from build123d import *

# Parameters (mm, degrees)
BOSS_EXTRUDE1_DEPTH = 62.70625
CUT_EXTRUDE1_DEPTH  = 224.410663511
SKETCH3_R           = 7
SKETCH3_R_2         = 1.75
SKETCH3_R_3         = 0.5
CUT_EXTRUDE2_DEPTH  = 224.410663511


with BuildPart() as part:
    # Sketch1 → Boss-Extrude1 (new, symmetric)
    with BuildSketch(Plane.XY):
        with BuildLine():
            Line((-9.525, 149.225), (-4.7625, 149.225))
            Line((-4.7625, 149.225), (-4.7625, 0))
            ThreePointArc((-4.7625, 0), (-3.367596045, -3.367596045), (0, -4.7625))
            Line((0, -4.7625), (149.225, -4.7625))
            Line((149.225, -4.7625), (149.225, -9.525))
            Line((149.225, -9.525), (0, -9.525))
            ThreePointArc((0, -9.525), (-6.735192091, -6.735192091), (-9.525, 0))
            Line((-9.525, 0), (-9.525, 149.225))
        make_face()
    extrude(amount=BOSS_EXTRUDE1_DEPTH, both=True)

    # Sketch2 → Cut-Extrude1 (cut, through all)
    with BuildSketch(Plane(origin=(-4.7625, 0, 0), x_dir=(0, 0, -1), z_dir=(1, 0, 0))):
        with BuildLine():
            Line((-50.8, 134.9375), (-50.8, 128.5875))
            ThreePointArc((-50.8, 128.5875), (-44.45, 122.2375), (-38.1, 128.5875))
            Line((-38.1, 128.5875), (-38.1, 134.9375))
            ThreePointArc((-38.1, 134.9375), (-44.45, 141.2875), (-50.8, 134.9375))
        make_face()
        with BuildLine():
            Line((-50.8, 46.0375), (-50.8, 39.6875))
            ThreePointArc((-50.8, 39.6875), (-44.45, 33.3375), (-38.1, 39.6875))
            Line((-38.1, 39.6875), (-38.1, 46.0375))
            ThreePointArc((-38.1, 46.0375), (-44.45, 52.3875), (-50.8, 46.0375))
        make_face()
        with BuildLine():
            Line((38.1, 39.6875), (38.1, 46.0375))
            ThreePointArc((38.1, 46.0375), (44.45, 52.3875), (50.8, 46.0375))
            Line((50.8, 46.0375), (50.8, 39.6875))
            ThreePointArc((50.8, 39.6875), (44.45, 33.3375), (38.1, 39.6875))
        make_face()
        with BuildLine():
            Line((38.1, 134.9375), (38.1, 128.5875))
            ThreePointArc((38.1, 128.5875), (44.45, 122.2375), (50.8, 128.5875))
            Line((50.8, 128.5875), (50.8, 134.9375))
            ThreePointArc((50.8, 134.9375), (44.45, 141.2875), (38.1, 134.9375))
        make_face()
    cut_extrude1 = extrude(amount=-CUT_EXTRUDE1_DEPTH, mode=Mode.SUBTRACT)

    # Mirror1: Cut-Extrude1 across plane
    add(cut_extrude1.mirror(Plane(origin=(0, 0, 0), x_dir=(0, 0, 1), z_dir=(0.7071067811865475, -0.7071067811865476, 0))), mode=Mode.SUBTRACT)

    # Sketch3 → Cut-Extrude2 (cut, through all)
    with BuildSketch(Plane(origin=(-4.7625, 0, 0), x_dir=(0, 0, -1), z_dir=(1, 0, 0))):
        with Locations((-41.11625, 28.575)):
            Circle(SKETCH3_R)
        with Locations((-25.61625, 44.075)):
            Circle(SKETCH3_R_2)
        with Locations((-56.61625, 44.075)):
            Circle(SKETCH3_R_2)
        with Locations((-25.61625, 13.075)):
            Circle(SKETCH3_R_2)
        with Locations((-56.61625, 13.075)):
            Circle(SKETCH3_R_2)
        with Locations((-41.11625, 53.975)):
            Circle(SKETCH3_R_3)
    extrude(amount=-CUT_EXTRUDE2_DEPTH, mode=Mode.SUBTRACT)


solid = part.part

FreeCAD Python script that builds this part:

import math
import FreeCAD as App
import Part
import Sketcher
from FreeCAD import Vector
Q = App.Units.Quantity

doc = App.newDocument("Part")
body = doc.addObject("PartDesign::Body", "Body")

# Sketch on XY plane
sketch1 = body.newObject("Sketcher::SketchObject", "Sketch")
sketch1.AttachmentSupport = (doc.getObject("XY_Plane"), [""])
sketch1.MapMode = "FlatFace"
sketch1.addGeometry([
    Part.LineSegment(Vector(-4.8, 149.2, 0), Vector(-9.5, 149.2, 0)),  # 0
    Part.LineSegment(Vector(-9.5, 149.2, 0), Vector(-9.5, 0, 0)),  # 1
    Part.ArcOfCircle(Part.Circle(Vector(0, 0, 0), Vector(0, 0, 1), 9.5), math.radians(180), math.radians(270)),  # 2
    Part.LineSegment(Vector(0, -9.5, 0), Vector(149.2, -9.5, 0)),  # 3
    Part.LineSegment(Vector(149.2, -9.5, 0), Vector(149.2, -4.8, 0)),  # 4
    Part.LineSegment(Vector(149.2, -4.8, 0), Vector(0, -4.8, 0)),  # 5
    Part.ArcOfCircle(Part.Circle(Vector(0, 0, 0), Vector(0, 0, 1), 4.8), math.radians(-180), math.radians(-90)),  # 6
    Part.LineSegment(Vector(-4.8, 0, 0), Vector(-4.8, 149.2, 0)),  # 7
], False)
sketch1.addConstraint([
    Sketcher.Constraint("Coincident", 0, 2, 1, 1),
    Sketcher.Constraint("Tangent", 1, 2, 2, 1),
    Sketcher.Constraint("Tangent", 2, 2, 3, 1),
    Sketcher.Constraint("Coincident", 3, 2, 4, 1),
    Sketcher.Constraint("Coincident", 4, 2, 5, 1),
    Sketcher.Constraint("Tangent", 5, 2, 6, 2),
    Sketcher.Constraint("Tangent", 6, 1, 7, 1),
    Sketcher.Constraint("Coincident", 7, 2, 0, 1),
    Sketcher.Constraint("Horizontal", 0),
    Sketcher.Constraint("Vertical", 1),
    Sketcher.Constraint("Horizontal", 3),
    Sketcher.Constraint("Vertical", 4),
    Sketcher.Constraint("Horizontal", 5),
    Sketcher.Constraint("Vertical", 7),
    Sketcher.Constraint("Coincident", 2, 3, -1, 1),
    Sketcher.Constraint("Coincident", 6, 3, -1, 1),
    Sketcher.Constraint("Equal", 5, 1),
    Sketcher.Constraint("Radius", 2, Q("0.375 in")),
    Sketcher.Constraint("Radius", 6, Q("0.1875 in")),
    Sketcher.Constraint("DistanceX", 3, 1, 3, 2, Q("5.875 in")),
])
pad1 = body.newObject("PartDesign::Pad", "Pad")
pad1.Profile = sketch1
pad1.Length = Q("4.9375 in")
pad1.Midplane = True

# Sketch on YZ plane
sketch2 = body.newObject("Sketcher::SketchObject", "Sketch001")
sketch2.AttachmentSupport = (doc.getObject("YZ_Plane"), [""])
sketch2.MapMode = "FlatFace"
sketch2.AttachmentOffset = App.Placement(Vector(0, 0, -0.1875 * 25.4), App.Rotation())
sketch2.addGeometry([
    Part.LineSegment(Vector(135, 51, 0), Vector(129, 51, 0)),  # 0
    Part.ArcOfCircle(Part.Circle(Vector(129, 44, 0), Vector(0, 0, 1), 6), math.radians(90), math.radians(270)),  # 1
    Part.LineSegment(Vector(129, 38, 0), Vector(135, 38, 0)),  # 2
    Part.ArcOfCircle(Part.Circle(Vector(135, 44, 0), Vector(0, 0, 1), 6), math.radians(-90), math.radians(90)),  # 3
    Part.LineSegment(Vector(46, 51, 0), Vector(40, 51, 0)),  # 4
    Part.ArcOfCircle(Part.Circle(Vector(40, 44, 0), Vector(0, 0, 1), 6), math.radians(90), math.radians(270)),  # 5
    Part.LineSegment(Vector(40, 38, 0), Vector(46, 38, 0)),  # 6
    Part.ArcOfCircle(Part.Circle(Vector(46, 44, 0), Vector(0, 0, 1), 6), math.radians(-90), math.radians(90)),  # 7
    Part.LineSegment(Vector(46, -38, 0), Vector(40, -38, 0)),  # 8
    Part.ArcOfCircle(Part.Circle(Vector(40, -44, 0), Vector(0, 0, 1), 6), math.radians(90), math.radians(270)),  # 9
    Part.LineSegment(Vector(40, -51, 0), Vector(46, -51, 0)),  # 10
    Part.ArcOfCircle(Part.Circle(Vector(46, -44, 0), Vector(0, 0, 1), 6), math.radians(-90), math.radians(90)),  # 11
    Part.LineSegment(Vector(135, -38, 0), Vector(129, -38, 0)),  # 12
    Part.ArcOfCircle(Part.Circle(Vector(129, -44, 0), Vector(0, 0, 1), 6), math.radians(90), math.radians(270)),  # 13
    Part.LineSegment(Vector(129, -51, 0), Vector(135, -51, 0)),  # 14
    Part.ArcOfCircle(Part.Circle(Vector(135, -44, 0), Vector(0, 0, 1), 6), math.radians(-90), math.radians(90)),  # 15
], False)
sketch2.addConstraint([
    Sketcher.Constraint("Tangent", 0, 2, 1, 1),
    Sketcher.Constraint("Tangent", 1, 2, 2, 1),
    Sketcher.Constraint("Tangent", 2, 2, 3, 1),
    Sketcher.Constraint("Tangent", 3, 2, 0, 1),
    Sketcher.Constraint("Tangent", 4, 2, 5, 1),
    Sketcher.Constraint("Tangent", 5, 2, 6, 1),
    Sketcher.Constraint("Tangent", 6, 2, 7, 1),
    Sketcher.Constraint("Tangent", 7, 2, 4, 1),
    Sketcher.Constraint("Tangent", 8, 2, 9, 1),
    Sketcher.Constraint("Tangent", 9, 2, 10, 1),
    Sketcher.Constraint("Tangent", 10, 2, 11, 1),
    Sketcher.Constraint("Tangent", 11, 2, 8, 1),
    Sketcher.Constraint("Tangent", 12, 2, 13, 1),
    Sketcher.Constraint("Tangent", 13, 2, 14, 1),
    Sketcher.Constraint("Tangent", 14, 2, 15, 1),
    Sketcher.Constraint("Tangent", 15, 2, 12, 1),
    Sketcher.Constraint("Horizontal", 0),
    Sketcher.Constraint("Horizontal", 2),
    Sketcher.Constraint("Horizontal", 4),
    Sketcher.Constraint("Horizontal", 6),
    Sketcher.Constraint("Horizontal", 8),
    Sketcher.Constraint("Horizontal", 10),
    Sketcher.Constraint("Horizontal", 12),
    Sketcher.Constraint("Horizontal", 14),
    Sketcher.Constraint("Equal", 3, 5),
    Sketcher.Constraint("Equal", 7, 9),
    Sketcher.Constraint("Equal", 11, 13),
    Sketcher.Constraint("Symmetric", 5, 3, 9, 3, -1),
    Sketcher.Constraint("Symmetric", 1, 3, 13, 3, -1),
    Sketcher.Constraint("Horizontal", 3, 3, 5, 3),
    Sketcher.Constraint("Vertical", 7, 3, 11, 3),
    Sketcher.Constraint("Vertical", 3, 3, 15, 3),
    Sketcher.Constraint("Equal", 2, 4),
    Sketcher.Constraint("Radius", 1, Q("0.25 in")),
    Sketcher.Constraint("DistanceY", -1, 1, 0, 2, Q("2 in")),
    Sketcher.Constraint("DistanceX", 0, 2, 0, 1, Q("0.25 in")),
    Sketcher.Constraint("DistanceX", 5, 3, 1, 3, Q("3.5 in")),
    Sketcher.Constraint("DistanceX", -1, 1, 1, 3, Q("5.0625 in")),
])
pocket1 = body.newObject("PartDesign::Pocket", "Pocket")
pocket1.Profile = sketch2
pocket1.Type = "ThroughAll"
doc.recompute()

datumplane = body.newObject("PartDesign::Plane", "DatumPlane")
datumplane.Placement = App.Placement(Vector(0, 0, 0), App.Rotation(Vector(-0.707106781, -0.707106781, 0), Vector(0, 0, -1), Vector(0.707106781, -0.707106781, 0), "ZXY"))
mirrored = body.newObject("PartDesign::Mirrored", "Mirrored")
mirrored.Originals = [pocket1]
mirrored.MirrorPlane = (datumplane, [""])
body.Tip = mirrored

# Sketch on YZ plane
sketch3 = body.newObject("Sketcher::SketchObject", "Sketch002")
sketch3.AttachmentSupport = (doc.getObject("YZ_Plane"), [""])
sketch3.MapMode = "FlatFace"
sketch3.AttachmentOffset = App.Placement(Vector(0, 0, -0.1875 * 25.4), App.Rotation())
sketch3.addGeometry([
    Part.Circle(Vector(28.6, 41.1, 0), Vector(0, 0, 1), 7),  # 0
    Part.Circle(Vector(44.1, 25.6, 0), Vector(0, 0, 1), 1.8),  # 1
    Part.Circle(Vector(44.1, 56.6, 0), Vector(0, 0, 1), 1.8),  # 2
    Part.Circle(Vector(13.1, 25.6, 0), Vector(0, 0, 1), 1.8),  # 3
    Part.Circle(Vector(13.1, 56.6, 0), Vector(0, 0, 1), 1.8),  # 4
    Part.Circle(Vector(54, 41.1, 0), Vector(0, 0, 1), 0.5),  # 5
], False)
sketch3.addConstraint([
    Sketcher.Constraint("Equal", 1, 2),
    Sketcher.Constraint("Equal", 2, 3),
    Sketcher.Constraint("Equal", 3, 4),
    Sketcher.Constraint("Horizontal", 1, 3, 3, 3),
    Sketcher.Constraint("Horizontal", 2, 3, 4, 3),
    Sketcher.Constraint("Horizontal", 0, 3, 5, 3),
    Sketcher.Constraint("Vertical", 1, 3, 2, 3),
    Sketcher.Constraint("Vertical", 3, 3, 4, 3),
    Sketcher.Constraint("DistanceX", 0, 3, 5, 3, Q("1 in")),
    Sketcher.Constraint("Diameter", 0, 14.0),
    Sketcher.Constraint("Diameter", 1, 3.5),
    Sketcher.Constraint("Diameter", 5, 1.0),
    Sketcher.Constraint("DistanceX", -1, 1, 0, 3, Q("1.125 in")),
    Sketcher.Constraint("DistanceX", -1, 1, 1, 3, 44.075),
    Sketcher.Constraint("DistanceX", -1, 1, 3, 3, 13.075),
    Sketcher.Constraint("DistanceY", 1, 3, 0, 3, 15.5),
    Sketcher.Constraint("DistanceY", 0, 3, 2, 3, 15.5),
    Sketcher.Constraint("DistanceY", -1, 1, 0, 3, 41.11625),
])
pocket2 = body.newObject("PartDesign::Pocket", "Pocket001")
pocket2.Profile = sketch3
pocket2.Type = "ThroughAll"

doc.recompute()
